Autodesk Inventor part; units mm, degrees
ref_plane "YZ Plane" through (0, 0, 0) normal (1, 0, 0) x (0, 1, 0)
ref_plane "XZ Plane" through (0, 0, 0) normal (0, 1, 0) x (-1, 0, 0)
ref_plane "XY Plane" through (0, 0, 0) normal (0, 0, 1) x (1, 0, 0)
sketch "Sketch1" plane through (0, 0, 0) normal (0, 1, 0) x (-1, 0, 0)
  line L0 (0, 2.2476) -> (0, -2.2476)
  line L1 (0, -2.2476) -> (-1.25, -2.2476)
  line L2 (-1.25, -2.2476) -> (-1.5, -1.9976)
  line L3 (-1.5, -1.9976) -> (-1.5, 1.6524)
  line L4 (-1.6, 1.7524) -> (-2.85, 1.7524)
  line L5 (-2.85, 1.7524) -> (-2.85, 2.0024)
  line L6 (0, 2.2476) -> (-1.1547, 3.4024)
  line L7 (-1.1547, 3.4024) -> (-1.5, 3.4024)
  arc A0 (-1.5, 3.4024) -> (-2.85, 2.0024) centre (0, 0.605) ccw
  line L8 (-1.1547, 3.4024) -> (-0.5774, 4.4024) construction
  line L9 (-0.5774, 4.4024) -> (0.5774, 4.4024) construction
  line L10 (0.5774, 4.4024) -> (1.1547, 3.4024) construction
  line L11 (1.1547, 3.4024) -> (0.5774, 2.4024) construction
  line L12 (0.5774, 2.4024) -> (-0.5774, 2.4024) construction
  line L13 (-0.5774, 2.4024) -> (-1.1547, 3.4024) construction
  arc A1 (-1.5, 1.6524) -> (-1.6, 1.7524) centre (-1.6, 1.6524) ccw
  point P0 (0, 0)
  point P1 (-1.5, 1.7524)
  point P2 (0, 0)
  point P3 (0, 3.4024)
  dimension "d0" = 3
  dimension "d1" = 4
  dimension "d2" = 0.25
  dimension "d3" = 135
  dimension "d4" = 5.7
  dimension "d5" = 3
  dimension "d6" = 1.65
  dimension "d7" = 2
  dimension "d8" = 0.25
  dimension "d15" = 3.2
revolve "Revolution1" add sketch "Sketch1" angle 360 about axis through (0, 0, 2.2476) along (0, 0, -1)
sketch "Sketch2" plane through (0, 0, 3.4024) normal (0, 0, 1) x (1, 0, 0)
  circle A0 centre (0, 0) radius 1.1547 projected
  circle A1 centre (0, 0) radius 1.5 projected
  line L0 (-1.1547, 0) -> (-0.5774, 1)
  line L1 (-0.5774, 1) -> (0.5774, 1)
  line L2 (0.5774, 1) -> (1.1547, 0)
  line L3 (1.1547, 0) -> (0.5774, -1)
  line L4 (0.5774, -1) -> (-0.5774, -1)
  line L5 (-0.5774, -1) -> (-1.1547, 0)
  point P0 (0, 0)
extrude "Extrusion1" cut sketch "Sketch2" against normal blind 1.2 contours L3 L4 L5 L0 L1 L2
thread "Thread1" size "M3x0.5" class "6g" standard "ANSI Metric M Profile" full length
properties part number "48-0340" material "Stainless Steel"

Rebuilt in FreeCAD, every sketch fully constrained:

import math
import FreeCAD as App
import Part
import Sketcher
Q = App.Units.Quantity


def add_polygon(sketch, points):
    """Adds a closed chain of lines whose ends are joined by coincident constraints."""
    first, n = sketch.GeometryCount, len(points)
    for a, b in zip(points, points[1:] + points[:1]):
        sketch.addGeometry(Part.LineSegment(App.Vector(*a, 0), App.Vector(*b, 0)), False)
    for i in range(n):
        sketch.addConstraint(Sketcher.Constraint("Coincident", first + i, 2, first + (i + 1) % n, 1))

doc = App.newDocument("Part")
body = doc.addObject("PartDesign::Body", "Body")

# Sketch on XZ plane
sketch1 = doc.addObject("Sketcher::SketchObject", "Sketch")
body.addObject(sketch1)
sketch1.AttachmentSupport = (doc.XZ_Plane, [""])
sketch1.MapMode = "FlatFace"
sketch1.addGeometry([
    Part.LineSegment(App.Vector(0, -2.25, 0), App.Vector(0, 2.25, 0)),  # 0
    Part.LineSegment(App.Vector(0, 2.25, 0), App.Vector(1.15, 3.4, 0)),  # 1
    Part.LineSegment(App.Vector(1.15, 3.4, 0), App.Vector(1.5, 3.4, 0)),  # 2
    Part.ArcOfCircle(Part.Circle(App.Vector(0, 0.6, 0), App.Vector(0, 0, 1), 3.17), math.radians(26), math.radians(62)),  # 3
    Part.LineSegment(App.Vector(2.85, 2, 0), App.Vector(2.85, 1.75, 0)),  # 4
    Part.LineSegment(App.Vector(2.85, 1.75, 0), App.Vector(1.6, 1.75, 0)),  # 5
    Part.ArcOfCircle(Part.Circle(App.Vector(1.6, 1.65, 0), App.Vector(0, 0, 1), 0.1), math.radians(90), math.radians(180)),  # 6
    Part.LineSegment(App.Vector(1.5, 1.65, 0), App.Vector(1.5, -2, 0)),  # 7
    Part.LineSegment(App.Vector(1.5, -2, 0), App.Vector(1.25, -2.25, 0)),  # 8
    Part.LineSegment(App.Vector(1.25, -2.25, 0), App.Vector(0, -2.25, 0)),  # 9
], False)
sketch1.addConstraint([
    Sketcher.Constraint("Coincident", 0, 2, 1, 1),
    Sketcher.Constraint("Coincident", 1, 2, 2, 1),
    Sketcher.Constraint("Coincident", 2, 2, 3, 2),
    Sketcher.Constraint("Coincident", 3, 1, 4, 1),
    Sketcher.Constraint("Coincident", 4, 2, 5, 1),
    Sketcher.Constraint("Tangent", 5, 2, 6, 1),
    Sketcher.Constraint("Tangent", 6, 2, 7, 1),
    Sketcher.Constraint("Coincident", 7, 2, 8, 1),
    Sketcher.Constraint("Coincident", 8, 2, 9, 1),
    Sketcher.Constraint("Coincident", 9, 2, 0, 1),
    Sketcher.Constraint("Vertical", 0),
    Sketcher.Constraint("Horizontal", 2),
    Sketcher.Constraint("Vertical", 4),
    Sketcher.Constraint("Horizontal", 5),
    Sketcher.Constraint("Vertical", 7),
    Sketcher.Constraint("Horizontal", 9),
    Sketcher.Constraint("Symmetric", 0, 2, 9, 2, -1, 1),
    Sketcher.Constraint("PointOnObject", 3, 3, -2),
    Sketcher.Constraint("Parallel", 1, 8),
    Sketcher.Constraint("Vertical", 2, 2, 6, 2),
    Sketcher.Constraint("Equal", 5, 9),
    Sketcher.Constraint("Angle", 8, Q("-135 deg")),
    Sketcher.Constraint("DistanceY", 8, 2, 5, 2, 4.0),
    Sketcher.Constraint("DistanceY", 4, 2, 4, 1, 0.25),
    Sketcher.Constraint("Radius", 6, 0.1),
    Sketcher.Constraint("DistanceY", 4, 2, 2, 2, 1.65),
    Sketcher.Constraint("DistanceX", 8, 2, 7, 2, 0.25),
    Sketcher.Constraint("DistanceX", 5, 2, 5, 1, 1.25),
    Sketcher.Constraint("Distance", 1, 1.633),
])
revolution = doc.addObject("PartDesign::Revolution", "Revolution")
body.addObject(revolution)
revolution.Profile = sketch1
revolution.ReferenceAxis = (sketch1, ["V_Axis"])
revolution.Angle = 360

# Sketch on XY plane
sketch2 = doc.addObject("Sketcher::SketchObject", "Sketch001")
body.addObject(sketch2)
sketch2.AttachmentSupport = (doc.XY_Plane, [""])
sketch2.MapMode = "FlatFace"
sketch2.AttachmentOffset = App.Placement(App.Vector(0, 0, 3.4024), App.Rotation())
add_polygon(sketch2, [(0.6, -1), (1.2, 0), (0.6, 1), (-0.6, 1), (-1.2, 0), (-0.6, -1)])  # lines 0-5
sketch2.addConstraint([
    Sketcher.Constraint("Horizontal", 2),
    Sketcher.Constraint("Horizontal", 5),
    Sketcher.Constraint("Symmetric", 0, 2, 3, 2, -1, 1),
    Sketcher.Constraint("Symmetric", 1, 2, 4, 2, -1, 1),
    Sketcher.Constraint("PointOnObject", 0, 2, -1),
    Sketcher.Constraint("Parallel", 0, 3),
    Sketcher.Constraint("Vertical", 2, 2, 4, 2),
    Sketcher.Constraint("DistanceY", -1, 1, 1, 2, 1.0),
    Sketcher.Constraint("DistanceX", 2, 2, 2, 1, 1.1548),
    Sketcher.Constraint("DistanceX", 2, 2, 0, 2, 1.732),
])
pocket1 = doc.addObject("PartDesign::Pocket", "Pocket")
body.addObject(pocket1)
pocket1.Profile = sketch2
pocket1.Length = 1.2

doc.recompute()
